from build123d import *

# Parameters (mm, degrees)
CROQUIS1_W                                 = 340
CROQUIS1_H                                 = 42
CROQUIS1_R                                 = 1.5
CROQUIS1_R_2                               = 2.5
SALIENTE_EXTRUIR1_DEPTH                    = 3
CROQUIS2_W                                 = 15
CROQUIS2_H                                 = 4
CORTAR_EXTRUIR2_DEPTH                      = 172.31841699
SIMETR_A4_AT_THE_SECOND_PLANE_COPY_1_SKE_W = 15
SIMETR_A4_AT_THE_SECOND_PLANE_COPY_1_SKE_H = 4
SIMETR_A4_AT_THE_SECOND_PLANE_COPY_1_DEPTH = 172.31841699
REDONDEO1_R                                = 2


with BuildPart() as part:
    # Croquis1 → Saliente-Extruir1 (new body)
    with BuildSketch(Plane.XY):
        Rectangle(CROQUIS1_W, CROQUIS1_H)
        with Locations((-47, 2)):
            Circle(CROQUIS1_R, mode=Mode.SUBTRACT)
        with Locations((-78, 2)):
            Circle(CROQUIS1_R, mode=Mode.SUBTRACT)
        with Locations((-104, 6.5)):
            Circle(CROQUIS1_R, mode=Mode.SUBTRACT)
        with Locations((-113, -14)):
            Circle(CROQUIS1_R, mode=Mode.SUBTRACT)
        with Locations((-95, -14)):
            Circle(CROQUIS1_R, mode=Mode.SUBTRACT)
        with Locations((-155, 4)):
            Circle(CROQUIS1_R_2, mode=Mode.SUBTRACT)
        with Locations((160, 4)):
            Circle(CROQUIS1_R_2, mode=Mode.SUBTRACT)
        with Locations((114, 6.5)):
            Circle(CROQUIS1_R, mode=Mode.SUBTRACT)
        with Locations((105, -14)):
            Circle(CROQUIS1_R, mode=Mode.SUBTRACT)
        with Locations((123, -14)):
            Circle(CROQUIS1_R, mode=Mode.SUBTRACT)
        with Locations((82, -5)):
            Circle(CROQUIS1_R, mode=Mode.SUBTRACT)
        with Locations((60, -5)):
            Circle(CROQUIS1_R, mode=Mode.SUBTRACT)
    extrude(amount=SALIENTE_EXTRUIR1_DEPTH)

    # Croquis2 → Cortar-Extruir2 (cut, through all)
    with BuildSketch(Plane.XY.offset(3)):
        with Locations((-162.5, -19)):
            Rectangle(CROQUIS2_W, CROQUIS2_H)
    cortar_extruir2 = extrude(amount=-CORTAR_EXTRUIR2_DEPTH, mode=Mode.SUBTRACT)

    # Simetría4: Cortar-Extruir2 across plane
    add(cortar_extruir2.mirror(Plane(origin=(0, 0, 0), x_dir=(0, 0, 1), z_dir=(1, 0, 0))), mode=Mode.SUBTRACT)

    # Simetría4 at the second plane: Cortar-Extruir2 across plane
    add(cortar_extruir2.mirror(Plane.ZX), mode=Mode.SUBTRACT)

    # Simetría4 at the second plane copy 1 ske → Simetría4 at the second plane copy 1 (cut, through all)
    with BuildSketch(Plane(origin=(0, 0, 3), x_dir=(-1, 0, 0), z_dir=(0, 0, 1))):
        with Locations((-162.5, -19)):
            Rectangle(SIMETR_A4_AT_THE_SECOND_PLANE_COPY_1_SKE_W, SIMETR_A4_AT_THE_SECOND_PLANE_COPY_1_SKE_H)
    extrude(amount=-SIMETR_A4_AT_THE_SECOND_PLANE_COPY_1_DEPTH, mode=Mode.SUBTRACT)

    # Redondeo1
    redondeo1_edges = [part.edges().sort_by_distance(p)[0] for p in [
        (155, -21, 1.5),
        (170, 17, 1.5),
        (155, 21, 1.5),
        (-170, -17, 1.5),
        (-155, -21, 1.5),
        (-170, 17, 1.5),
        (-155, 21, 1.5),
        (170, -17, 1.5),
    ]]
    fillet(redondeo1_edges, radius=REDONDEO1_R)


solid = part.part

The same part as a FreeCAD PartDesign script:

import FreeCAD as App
import Part
import Sketcher
from FreeCAD import Vector
Q = App.Units.Quantity


def edges_at(feature, points):
    """Names of the edges that pass closest to the given points."""
    edges = feature.Shape.Edges
    near = lambda p: min(range(len(edges)), key=lambda i: edges[i].distToShape(Part.Vertex(*p))[0])
    return sorted({f"Edge{near(p) + 1}" for p in points})


def add_polygon(sketch, points):
    """Adds a closed chain of lines whose ends are joined by coincident constraints."""
    first, n = sketch.GeometryCount, len(points)
    for a, b in zip(points, points[1:] + points[:1]):
        sketch.addGeometry(Part.LineSegment(App.Vector(*a, 0), App.Vector(*b, 0)), False)
    for i in range(n):
        sketch.addConstraint(Sketcher.Constraint("Coincident", first + i, 2, first + (i + 1) % n, 1))

doc = App.newDocument("Part")
body = doc.addObject("PartDesign::Body", "Body")

sketch1 = body.newObject("Sketcher::SketchObject", "Sketch")
sketch1.AttachmentSupport = (doc.getObject("XY_Plane"), [""])
sketch1.MapMode = "FlatFace"
add_polygon(sketch1, [(-170, 21), (-170, -21), (170, -21), (170, 21)])
sketch1.addGeometry(Part.Circle(Vector(-113, -14, 0), Vector(0, 0, 1), 1.5), False)
sketch1.addGeometry(Part.Circle(Vector(-95, -14, 0), Vector(0, 0, 1), 1.5), False)
sketch1.addGeometry(Part.Circle(Vector(105, -14, 0), Vector(0, 0, 1), 1.5), False)
sketch1.addGeometry(Part.Circle(Vector(123, -14, 0), Vector(0, 0, 1), 1.5), False)
sketch1.addGeometry(Part.Circle(Vector(60, -5, 0), Vector(0, 0, 1), 1.5), False)
sketch1.addGeometry(Part.Circle(Vector(82, -5, 0), Vector(0, 0, 1), 1.5), False)
sketch1.addGeometry(Part.Circle(Vector(-78, 2, 0), Vector(0, 0, 1), 1.5), False)
sketch1.addGeometry(Part.Circle(Vector(-47, 2, 0), Vector(0, 0, 1), 1.5), False)
sketch1.addGeometry(Part.Circle(Vector(-155, 4, 0), Vector(0, 0, 1), 2.5), False)
sketch1.addGeometry(Part.Circle(Vector(-104, 6.5, 0), Vector(0, 0, 1), 1.5), False)
sketch1.addGeometry(Part.Circle(Vector(160, 4, 0), Vector(0, 0, 1), 2.5), False)
sketch1.addGeometry(Part.Circle(Vector(114, 6.5, 0), Vector(0, 0, 1), 1.5), False)
sketch1.addConstraint([
    Sketcher.Constraint("Vertical", 0),
    Sketcher.Constraint("Horizontal", 1),
    Sketcher.Constraint("Vertical", 2),
    Sketcher.Constraint("Horizontal", 3),
    Sketcher.Constraint("Equal", 4, 5),
    Sketcher.Constraint("Equal", 5, 6),
    Sketcher.Constraint("Equal", 6, 7),
    Sketcher.Constraint("Equal", 7, 8),
    Sketcher.Constraint("Equal", 8, 9),
    Sketcher.Constraint("Equal", 9, 10),
    Sketcher.Constraint("Equal", 10, 11),
    Sketcher.Constraint("Equal", 11, 13),
    Sketcher.Constraint("Equal", 12, 14),
    Sketcher.Constraint("Equal", 13, 15),
    Sketcher.Constraint("Symmetric", 0, 2, 2, 2, -1, 1),
    Sketcher.Constraint("Horizontal", 4, 3, 5, 3),
    Sketcher.Constraint("Horizontal", 5, 3, 6, 3),
    Sketcher.Constraint("Horizontal", 6, 3, 7, 3),
    Sketcher.Constraint("Horizontal", 8, 3, 9, 3),
    Sketcher.Constraint("Horizontal", 10, 3, 11, 3),
    Sketcher.Constraint("Horizontal", 12, 3, 14, 3),
    Sketcher.Constraint("Horizontal", 13, 3, 15, 3),
    Sketcher.Constraint("Diameter", 4, Q("3 mm")),
    Sketcher.Constraint("Diameter", 12, Q("5 mm")),
    Sketcher.Constraint("DistanceX", 1, 1, 1, 2, Q("340 mm")),
    Sketcher.Constraint("DistanceY", 0, 2, 0, 1, Q("42 mm")),
    Sketcher.Constraint("DistanceX", 4, 3, -1, 1, Q("113 mm")),
    Sketcher.Constraint("DistanceY", 4, 3, -1, 1, Q("14 mm")),
    Sketcher.Constraint("DistanceX", 5, 3, -1, 1, Q("95 mm")),
    Sketcher.Constraint("DistanceX", -1, 1, 6, 3, Q("105 mm")),
    Sketcher.Constraint("DistanceX", -1, 1, 7, 3, Q("123 mm")),
    Sketcher.Constraint("DistanceX", -1, 1, 8, 3, Q("60 mm")),
    Sketcher.Constraint("DistanceY", 8, 3, -1, 1, Q("5 mm")),
    Sketcher.Constraint("DistanceX", -1, 1, 9, 3, Q("82 mm")),
    Sketcher.Constraint("DistanceX", 10, 3, -1, 1, Q("78 mm")),
    Sketcher.Constraint("DistanceY", -1, 1, 10, 3, Q("2 mm")),
    Sketcher.Constraint("DistanceX", 11, 3, -1, 1, Q("47 mm")),
    Sketcher.Constraint("DistanceX", 12, 3, -1, 1, Q("155 mm")),
    Sketcher.Constraint("DistanceY", -1, 1, 12, 3, Q("4 mm")),
    Sketcher.Constraint("DistanceX", 13, 3, -1, 1, Q("104 mm")),
    Sketcher.Constraint("DistanceX", -1, 1, 14, 3, Q("160 mm")),
    Sketcher.Constraint("DistanceX", -1, 1, 15, 3, Q("114 mm")),
    Sketcher.Constraint("DistanceY", -1, 1, 13, 3, Q("6.5 mm")),
])
pad1 = body.newObject("PartDesign::Pad", "Pad")
pad1.Profile = sketch1
pad1.Length = 3

sketch2 = body.newObject("Sketcher::SketchObject", "Sketch001")
sketch2.AttachmentSupport = (doc.getObject("XY_Plane"), [""])
sketch2.MapMode = "FlatFace"
sketch2.AttachmentOffset = App.Placement(Vector(0, 0, 3), App.Rotation())
add_polygon(sketch2, [(-170, -17), (-170, -21), (-155, -21), (-155, -17)])
sketch2.addConstraint([
    Sketcher.Constraint("Vertical", 0),
    Sketcher.Constraint("Horizontal", 1),
    Sketcher.Constraint("Vertical", 2),
    Sketcher.Constraint("Horizontal", 3),
    Sketcher.Constraint("DistanceX", 1, 1, 1, 2, Q("15 mm")),
    Sketcher.Constraint("DistanceY", 0, 2, 0, 1, Q("4 mm")),
    Sketcher.Constraint("DistanceX", 0, 2, -1, 1, Q("170 mm")),
    Sketcher.Constraint("DistanceY", 0, 2, -1, 1, Q("21 mm")),
])
pocket1 = body.newObject("PartDesign::Pocket", "Pocket")
pocket1.Profile = sketch2
pocket1.Type = "ThroughAll"
doc.recompute()

mirrored = body.newObject("PartDesign::Mirrored", "Mirrored")
mirrored.Originals = [pocket1]
mirrored.MirrorPlane = (doc.getObject("YZ_Plane"), [""])
body.Tip = mirrored
doc.recompute()

mirrored2 = body.newObject("PartDesign::Mirrored", "Mirrored001")
mirrored2.Originals = [pocket1]
mirrored2.MirrorPlane = (doc.getObject("XZ_Plane"), [""])
body.Tip = mirrored2

sketch3 = body.newObject("Sketcher::SketchObject", "Sketch002")
sketch3.AttachmentSupport = (doc.getObject("XY_Plane"), [""])
sketch3.MapMode = "FlatFace"
sketch3.AttachmentOffset = App.Placement(Vector(0, 0, 3), App.Rotation())
add_polygon(sketch3, [(170, 17), (170, 21), (155, 21), (155, 17)])
sketch3.addConstraint([
    Sketcher.Constraint("Vertical", 0),
    Sketcher.Constraint("Horizontal", 1),
    Sketcher.Constraint("Vertical", 2),
    Sketcher.Constraint("Horizontal", 3),
    Sketcher.Constraint("DistanceX", 1, 2, 1, 1, Q("15 mm")),
    Sketcher.Constraint("DistanceY", 0, 1, 0, 2, Q("4 mm")),
    Sketcher.Constraint("DistanceX", -1, 1, 0, 2, Q("170 mm")),
    Sketcher.Constraint("DistanceY", -1, 1, 0, 2, Q("21 mm")),
])
pocket2 = body.newObject("PartDesign::Pocket", "Pocket001")
pocket2.Profile = sketch3
pocket2.Type = "ThroughAll"
doc.recompute()

fillet = body.newObject("PartDesign::Fillet", "Fillet")
fillet.Base = (pocket2, edges_at(pocket2, [
    (155, -21, 1.5),
    (170, 17, 1.5),
    (155, 21, 1.5),
    (-170, -17, 1.5),
    (-155, -21, 1.5),
    (-170, 17, 1.5),
    (-155, 21, 1.5),
    (170, -17, 1.5),
]))
fillet.Radius = 2

doc.recompute()
